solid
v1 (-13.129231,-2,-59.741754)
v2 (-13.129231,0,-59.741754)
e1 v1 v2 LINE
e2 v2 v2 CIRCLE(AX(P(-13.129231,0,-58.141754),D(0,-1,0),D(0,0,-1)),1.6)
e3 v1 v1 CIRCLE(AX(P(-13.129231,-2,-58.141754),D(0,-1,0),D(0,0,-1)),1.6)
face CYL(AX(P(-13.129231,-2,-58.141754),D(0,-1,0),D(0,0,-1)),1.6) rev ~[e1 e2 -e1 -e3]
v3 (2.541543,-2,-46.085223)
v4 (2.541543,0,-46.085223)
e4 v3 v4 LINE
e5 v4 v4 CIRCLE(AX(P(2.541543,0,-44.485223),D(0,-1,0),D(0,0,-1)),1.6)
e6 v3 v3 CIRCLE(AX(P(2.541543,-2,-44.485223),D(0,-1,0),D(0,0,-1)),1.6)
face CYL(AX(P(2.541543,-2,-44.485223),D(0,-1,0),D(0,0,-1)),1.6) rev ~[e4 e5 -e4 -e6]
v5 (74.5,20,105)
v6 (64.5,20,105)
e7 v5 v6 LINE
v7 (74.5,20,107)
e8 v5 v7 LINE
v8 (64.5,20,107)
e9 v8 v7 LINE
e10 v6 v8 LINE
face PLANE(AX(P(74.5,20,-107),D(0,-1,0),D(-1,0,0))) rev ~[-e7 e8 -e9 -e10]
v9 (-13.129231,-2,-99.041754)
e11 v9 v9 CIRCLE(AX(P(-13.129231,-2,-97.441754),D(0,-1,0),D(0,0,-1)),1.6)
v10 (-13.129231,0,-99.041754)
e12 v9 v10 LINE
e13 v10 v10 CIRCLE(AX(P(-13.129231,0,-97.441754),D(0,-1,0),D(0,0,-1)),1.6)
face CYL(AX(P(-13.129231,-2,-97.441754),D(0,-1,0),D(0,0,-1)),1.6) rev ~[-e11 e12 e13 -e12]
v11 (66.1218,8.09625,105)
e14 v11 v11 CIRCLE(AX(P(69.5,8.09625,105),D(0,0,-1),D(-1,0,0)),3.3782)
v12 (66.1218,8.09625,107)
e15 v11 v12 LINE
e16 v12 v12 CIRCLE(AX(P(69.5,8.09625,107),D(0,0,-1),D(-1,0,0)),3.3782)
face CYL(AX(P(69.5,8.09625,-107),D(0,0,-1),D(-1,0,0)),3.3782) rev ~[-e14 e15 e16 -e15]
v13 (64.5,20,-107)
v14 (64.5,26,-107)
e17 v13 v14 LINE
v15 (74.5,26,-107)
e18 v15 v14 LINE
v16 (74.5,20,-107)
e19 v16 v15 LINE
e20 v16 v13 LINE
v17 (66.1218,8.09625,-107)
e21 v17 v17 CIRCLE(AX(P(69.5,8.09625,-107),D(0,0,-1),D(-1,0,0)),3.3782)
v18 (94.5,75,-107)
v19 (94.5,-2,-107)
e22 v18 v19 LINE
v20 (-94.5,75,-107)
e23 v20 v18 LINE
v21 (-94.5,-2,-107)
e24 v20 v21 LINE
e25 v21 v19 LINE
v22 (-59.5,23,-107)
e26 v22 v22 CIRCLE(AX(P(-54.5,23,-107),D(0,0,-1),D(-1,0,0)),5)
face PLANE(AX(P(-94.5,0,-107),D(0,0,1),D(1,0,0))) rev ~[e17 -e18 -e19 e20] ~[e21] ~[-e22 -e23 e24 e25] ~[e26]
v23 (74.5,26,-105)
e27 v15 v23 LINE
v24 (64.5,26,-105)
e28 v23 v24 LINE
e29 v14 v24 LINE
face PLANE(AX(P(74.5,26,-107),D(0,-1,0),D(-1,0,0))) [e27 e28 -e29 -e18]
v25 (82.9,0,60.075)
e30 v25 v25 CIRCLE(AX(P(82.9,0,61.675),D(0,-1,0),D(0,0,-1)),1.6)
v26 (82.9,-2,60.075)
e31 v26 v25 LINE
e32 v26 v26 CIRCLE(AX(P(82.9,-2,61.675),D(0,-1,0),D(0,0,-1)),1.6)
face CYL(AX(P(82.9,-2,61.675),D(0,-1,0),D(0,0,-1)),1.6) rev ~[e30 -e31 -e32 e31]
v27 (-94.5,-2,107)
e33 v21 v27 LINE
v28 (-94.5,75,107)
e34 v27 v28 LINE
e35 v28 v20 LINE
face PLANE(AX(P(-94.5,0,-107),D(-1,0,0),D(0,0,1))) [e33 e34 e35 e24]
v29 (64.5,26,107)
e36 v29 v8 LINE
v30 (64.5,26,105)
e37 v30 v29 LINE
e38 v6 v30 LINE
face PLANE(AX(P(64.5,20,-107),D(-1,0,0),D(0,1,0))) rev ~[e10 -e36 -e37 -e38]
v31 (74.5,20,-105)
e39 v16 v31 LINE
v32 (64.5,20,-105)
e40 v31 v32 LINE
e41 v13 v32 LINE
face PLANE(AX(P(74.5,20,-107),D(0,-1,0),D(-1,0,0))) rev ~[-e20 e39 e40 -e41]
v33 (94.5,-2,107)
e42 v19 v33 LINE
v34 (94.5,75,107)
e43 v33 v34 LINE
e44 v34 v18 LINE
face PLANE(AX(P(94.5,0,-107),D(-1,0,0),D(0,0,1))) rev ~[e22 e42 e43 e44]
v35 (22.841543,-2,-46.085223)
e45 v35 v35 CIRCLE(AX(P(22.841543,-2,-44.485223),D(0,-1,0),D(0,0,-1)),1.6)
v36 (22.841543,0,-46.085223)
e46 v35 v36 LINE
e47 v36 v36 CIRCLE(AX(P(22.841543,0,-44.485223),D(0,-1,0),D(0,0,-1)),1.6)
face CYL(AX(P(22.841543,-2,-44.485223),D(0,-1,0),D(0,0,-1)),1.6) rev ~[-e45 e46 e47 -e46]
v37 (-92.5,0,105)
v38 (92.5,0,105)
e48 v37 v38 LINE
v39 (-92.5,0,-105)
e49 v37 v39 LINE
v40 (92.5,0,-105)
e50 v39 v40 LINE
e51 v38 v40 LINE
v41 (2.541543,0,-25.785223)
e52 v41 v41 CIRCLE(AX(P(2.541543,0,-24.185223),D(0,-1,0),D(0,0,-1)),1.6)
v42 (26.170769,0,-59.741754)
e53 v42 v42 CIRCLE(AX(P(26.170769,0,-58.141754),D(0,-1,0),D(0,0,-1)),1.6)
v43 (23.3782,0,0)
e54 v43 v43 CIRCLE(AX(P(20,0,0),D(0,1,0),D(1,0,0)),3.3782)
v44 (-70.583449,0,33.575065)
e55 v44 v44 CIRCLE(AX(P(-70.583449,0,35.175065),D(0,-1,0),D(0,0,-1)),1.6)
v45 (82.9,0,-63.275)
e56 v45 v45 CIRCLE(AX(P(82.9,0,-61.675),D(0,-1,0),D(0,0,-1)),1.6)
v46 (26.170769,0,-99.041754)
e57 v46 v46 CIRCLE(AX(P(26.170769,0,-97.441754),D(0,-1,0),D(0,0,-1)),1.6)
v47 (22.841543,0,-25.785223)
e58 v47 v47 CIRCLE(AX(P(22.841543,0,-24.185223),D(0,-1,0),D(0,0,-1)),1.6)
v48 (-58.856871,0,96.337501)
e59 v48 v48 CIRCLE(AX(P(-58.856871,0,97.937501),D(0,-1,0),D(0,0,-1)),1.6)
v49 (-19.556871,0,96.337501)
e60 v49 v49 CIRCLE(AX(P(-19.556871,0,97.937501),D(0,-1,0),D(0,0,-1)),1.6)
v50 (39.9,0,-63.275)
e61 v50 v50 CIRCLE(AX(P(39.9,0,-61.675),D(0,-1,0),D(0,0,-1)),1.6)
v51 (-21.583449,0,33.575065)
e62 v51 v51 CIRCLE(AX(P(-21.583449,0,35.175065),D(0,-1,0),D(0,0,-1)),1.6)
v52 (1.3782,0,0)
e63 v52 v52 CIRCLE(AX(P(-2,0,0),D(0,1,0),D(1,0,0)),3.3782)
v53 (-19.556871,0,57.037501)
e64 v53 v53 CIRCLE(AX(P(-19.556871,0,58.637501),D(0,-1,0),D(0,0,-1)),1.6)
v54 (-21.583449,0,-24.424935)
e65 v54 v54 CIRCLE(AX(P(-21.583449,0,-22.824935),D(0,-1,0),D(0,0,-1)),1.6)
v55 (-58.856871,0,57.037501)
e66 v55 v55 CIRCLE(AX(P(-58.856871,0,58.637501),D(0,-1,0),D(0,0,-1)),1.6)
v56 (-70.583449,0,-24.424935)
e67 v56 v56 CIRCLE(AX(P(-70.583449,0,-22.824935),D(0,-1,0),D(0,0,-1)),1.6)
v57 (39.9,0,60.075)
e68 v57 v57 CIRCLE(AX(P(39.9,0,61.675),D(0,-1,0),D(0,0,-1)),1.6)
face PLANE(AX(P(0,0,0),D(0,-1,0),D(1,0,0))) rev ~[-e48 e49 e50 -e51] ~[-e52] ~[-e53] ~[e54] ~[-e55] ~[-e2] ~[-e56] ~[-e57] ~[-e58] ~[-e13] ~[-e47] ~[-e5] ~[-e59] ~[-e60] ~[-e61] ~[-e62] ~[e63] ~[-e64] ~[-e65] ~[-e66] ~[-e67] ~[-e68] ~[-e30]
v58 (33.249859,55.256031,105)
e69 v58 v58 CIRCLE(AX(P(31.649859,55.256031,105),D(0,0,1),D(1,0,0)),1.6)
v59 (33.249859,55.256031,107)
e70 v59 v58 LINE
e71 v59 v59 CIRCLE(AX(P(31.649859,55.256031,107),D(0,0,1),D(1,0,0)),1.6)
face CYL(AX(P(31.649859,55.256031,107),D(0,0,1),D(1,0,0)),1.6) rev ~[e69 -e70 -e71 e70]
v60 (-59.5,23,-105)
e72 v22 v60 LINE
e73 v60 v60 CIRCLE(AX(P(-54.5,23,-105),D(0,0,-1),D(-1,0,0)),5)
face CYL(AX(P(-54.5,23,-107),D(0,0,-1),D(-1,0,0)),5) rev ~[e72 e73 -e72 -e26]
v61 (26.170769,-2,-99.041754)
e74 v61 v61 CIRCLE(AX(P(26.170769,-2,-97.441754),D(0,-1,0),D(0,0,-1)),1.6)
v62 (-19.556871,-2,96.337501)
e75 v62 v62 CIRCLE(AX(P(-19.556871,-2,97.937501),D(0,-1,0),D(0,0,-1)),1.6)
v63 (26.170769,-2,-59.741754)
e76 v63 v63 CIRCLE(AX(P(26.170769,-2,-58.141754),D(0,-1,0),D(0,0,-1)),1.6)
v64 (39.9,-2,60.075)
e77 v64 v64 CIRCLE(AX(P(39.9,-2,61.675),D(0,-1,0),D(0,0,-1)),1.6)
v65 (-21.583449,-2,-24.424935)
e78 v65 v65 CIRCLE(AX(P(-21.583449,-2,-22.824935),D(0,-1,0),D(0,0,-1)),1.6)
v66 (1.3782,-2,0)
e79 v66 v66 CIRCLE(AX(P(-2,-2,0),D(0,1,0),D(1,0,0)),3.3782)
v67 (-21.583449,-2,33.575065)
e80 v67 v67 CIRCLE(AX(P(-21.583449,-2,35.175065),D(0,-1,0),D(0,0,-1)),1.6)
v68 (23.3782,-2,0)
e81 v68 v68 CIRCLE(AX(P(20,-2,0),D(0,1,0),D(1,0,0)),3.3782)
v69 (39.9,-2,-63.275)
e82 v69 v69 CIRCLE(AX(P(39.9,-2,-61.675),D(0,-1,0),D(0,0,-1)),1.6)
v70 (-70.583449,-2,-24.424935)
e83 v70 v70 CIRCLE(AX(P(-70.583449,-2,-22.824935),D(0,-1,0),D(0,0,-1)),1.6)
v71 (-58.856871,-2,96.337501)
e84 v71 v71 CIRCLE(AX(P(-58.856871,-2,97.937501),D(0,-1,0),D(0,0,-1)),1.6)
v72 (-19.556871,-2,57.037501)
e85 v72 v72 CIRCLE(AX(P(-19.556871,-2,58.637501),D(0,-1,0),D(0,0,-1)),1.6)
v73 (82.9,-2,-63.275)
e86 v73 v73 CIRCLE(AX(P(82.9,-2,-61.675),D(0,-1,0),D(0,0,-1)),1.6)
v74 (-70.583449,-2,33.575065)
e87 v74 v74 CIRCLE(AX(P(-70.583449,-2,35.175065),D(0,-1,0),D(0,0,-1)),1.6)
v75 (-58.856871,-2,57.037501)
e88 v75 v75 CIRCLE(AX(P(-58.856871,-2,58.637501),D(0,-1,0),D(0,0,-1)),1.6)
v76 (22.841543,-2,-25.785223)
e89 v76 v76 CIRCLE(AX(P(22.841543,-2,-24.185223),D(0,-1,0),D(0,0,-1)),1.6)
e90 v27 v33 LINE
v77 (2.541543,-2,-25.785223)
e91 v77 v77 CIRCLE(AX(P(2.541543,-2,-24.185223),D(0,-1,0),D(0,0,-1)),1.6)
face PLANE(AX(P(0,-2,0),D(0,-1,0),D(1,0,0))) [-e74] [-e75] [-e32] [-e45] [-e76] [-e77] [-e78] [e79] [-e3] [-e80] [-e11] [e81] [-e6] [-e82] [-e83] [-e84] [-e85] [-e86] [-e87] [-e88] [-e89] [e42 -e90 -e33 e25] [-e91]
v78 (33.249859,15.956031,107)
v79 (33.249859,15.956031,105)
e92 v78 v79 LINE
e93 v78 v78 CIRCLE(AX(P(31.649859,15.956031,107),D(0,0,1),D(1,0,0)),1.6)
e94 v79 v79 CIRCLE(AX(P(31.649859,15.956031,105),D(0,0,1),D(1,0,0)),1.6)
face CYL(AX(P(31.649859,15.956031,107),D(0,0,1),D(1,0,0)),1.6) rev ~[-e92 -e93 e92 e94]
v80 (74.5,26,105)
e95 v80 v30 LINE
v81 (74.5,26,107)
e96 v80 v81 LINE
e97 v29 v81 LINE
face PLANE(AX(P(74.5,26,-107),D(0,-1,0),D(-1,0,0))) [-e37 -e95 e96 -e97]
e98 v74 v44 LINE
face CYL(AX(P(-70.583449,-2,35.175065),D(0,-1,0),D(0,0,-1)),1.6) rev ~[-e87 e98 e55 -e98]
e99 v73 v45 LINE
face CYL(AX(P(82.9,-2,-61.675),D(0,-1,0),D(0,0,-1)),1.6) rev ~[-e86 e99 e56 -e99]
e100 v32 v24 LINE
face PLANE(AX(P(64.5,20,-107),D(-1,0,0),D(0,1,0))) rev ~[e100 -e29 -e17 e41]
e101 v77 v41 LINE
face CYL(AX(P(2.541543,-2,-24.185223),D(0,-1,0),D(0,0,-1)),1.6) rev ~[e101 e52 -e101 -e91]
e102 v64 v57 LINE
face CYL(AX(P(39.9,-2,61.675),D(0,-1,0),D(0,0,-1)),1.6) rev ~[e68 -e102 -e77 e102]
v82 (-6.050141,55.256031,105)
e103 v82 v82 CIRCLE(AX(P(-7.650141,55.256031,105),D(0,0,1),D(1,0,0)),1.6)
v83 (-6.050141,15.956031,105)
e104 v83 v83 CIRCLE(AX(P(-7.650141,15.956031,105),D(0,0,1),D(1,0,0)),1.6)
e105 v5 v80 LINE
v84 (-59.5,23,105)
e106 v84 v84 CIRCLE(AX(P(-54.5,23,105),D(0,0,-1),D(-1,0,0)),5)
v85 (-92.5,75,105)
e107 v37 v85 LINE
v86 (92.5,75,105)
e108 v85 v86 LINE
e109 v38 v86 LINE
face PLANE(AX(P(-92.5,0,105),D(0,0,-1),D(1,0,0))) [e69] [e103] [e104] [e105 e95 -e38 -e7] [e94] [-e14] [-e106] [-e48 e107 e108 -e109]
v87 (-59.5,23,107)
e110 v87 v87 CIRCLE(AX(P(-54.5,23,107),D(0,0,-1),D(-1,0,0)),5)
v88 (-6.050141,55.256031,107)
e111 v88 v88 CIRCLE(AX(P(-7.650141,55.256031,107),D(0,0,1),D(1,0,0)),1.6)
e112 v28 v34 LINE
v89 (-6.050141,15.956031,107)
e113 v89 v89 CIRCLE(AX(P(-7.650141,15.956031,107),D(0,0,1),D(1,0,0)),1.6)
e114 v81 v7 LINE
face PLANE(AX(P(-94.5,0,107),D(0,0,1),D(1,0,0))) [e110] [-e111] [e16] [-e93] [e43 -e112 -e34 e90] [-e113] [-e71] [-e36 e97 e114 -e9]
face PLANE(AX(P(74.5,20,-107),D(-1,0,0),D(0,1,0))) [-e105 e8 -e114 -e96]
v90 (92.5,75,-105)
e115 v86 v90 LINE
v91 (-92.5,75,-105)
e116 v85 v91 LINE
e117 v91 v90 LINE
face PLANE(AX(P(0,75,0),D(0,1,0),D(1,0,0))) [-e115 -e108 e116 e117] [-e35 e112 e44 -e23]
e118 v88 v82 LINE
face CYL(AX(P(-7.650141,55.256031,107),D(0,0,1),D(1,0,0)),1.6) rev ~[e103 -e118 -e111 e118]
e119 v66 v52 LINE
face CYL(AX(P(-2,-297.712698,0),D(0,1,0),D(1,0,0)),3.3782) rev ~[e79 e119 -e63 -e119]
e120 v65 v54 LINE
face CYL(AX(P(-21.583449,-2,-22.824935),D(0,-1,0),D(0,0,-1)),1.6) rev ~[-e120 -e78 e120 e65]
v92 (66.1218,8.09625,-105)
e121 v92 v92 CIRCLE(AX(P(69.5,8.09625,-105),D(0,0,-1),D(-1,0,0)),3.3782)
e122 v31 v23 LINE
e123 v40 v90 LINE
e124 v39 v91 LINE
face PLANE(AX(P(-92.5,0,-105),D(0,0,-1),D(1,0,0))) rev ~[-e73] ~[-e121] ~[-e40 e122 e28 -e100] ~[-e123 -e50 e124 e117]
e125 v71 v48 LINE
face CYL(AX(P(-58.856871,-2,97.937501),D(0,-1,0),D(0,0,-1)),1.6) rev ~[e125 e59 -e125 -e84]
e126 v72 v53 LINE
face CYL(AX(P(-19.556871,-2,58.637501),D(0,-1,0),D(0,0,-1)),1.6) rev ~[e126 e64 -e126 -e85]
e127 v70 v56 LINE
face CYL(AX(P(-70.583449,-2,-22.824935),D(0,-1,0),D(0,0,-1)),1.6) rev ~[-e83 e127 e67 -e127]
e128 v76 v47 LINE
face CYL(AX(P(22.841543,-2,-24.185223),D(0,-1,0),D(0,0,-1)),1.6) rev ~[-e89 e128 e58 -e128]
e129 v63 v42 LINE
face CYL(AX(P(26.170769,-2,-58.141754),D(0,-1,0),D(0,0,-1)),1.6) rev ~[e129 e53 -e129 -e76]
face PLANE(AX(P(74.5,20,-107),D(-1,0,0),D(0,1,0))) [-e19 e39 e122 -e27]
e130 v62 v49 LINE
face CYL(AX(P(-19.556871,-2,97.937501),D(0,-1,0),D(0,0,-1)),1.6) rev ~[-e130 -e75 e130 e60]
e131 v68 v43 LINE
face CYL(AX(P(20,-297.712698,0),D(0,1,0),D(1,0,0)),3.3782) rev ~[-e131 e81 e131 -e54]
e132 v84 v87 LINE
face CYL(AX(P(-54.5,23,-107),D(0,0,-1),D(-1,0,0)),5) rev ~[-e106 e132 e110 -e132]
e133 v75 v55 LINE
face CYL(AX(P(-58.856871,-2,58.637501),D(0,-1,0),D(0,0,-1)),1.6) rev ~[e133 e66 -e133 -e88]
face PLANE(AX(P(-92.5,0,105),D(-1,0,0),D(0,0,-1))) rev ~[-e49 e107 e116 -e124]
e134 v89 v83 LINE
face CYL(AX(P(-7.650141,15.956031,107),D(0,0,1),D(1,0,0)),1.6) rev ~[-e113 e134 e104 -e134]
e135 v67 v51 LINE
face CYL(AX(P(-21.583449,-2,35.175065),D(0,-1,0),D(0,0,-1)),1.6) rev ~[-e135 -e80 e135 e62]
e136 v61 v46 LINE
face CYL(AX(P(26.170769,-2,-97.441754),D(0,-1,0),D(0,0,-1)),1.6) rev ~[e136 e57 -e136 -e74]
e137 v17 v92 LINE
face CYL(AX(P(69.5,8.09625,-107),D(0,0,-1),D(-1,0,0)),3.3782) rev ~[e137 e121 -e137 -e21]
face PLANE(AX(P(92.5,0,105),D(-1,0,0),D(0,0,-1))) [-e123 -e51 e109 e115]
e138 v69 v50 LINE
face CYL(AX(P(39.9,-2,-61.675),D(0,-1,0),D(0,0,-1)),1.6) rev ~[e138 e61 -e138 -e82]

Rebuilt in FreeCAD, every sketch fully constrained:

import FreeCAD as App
import Part
import Sketcher
from FreeCAD import Vector


def add_polygon(sketch, points):
    """Adds a closed chain of lines whose ends are joined by coincident constraints."""
    first, n = sketch.GeometryCount, len(points)
    for a, b in zip(points, points[1:] + points[:1]):
        sketch.addGeometry(Part.LineSegment(App.Vector(*a, 0), App.Vector(*b, 0)), False)
    for i in range(n):
        sketch.addConstraint(Sketcher.Constraint("Coincident", first + i, 2, first + (i + 1) % n, 1))

doc = App.newDocument("Part")
body = doc.addObject("PartDesign::Body", "Body")

sketch1 = body.newObject("Sketcher::SketchObject", "Sketch")
sketch1.AttachmentSupport = (doc.getObject("XZ_Plane"), [""])
sketch1.MapMode = "FlatFace"
add_polygon(sketch1, [(-94, -107), (-94, 107), (94, 107), (94, -107)])
add_polygon(sketch1, [(92, 105), (-92, 105), (-92, -105), (92, -105)])
sketch1.addConstraint([
    Sketcher.Constraint("Vertical", 0),
    Sketcher.Constraint("Horizontal", 1),
    Sketcher.Constraint("Vertical", 2),
    Sketcher.Constraint("Horizontal", 3),
    Sketcher.Constraint("Horizontal", 4),
    Sketcher.Constraint("Vertical", 5),
    Sketcher.Constraint("Horizontal", 6),
    Sketcher.Constraint("Vertical", 7),
    Sketcher.Constraint("Symmetric", 0, 2, 2, 2, -1, 1),
    Sketcher.Constraint("Symmetric", 4, 2, 6, 2, -1, 1),
    Sketcher.Constraint("DistanceX", 1, 1, 1, 2, 189.0),
    Sketcher.Constraint("DistanceX", 4, 2, 4, 1, 185.0),
    Sketcher.Constraint("DistanceY", 0, 1, 0, 2, 214.0),
    Sketcher.Constraint("DistanceY", 5, 2, 5, 1, 210.0),
])
pad1 = body.newObject("PartDesign::Pad", "Pad")
pad1.Profile = sketch1
pad1.Length = 75
pad1.Reversed = True

sketch2 = body.newObject("Sketcher::SketchObject", "Sketch001")
sketch2.AttachmentSupport = (doc.getObject("XZ_Plane"), [""])
sketch2.MapMode = "FlatFace"
add_polygon(sketch2, [(-94, 107), (-94, -107), (94, -107), (94, 107)])
sketch2.addConstraint([
    Sketcher.Constraint("Vertical", 0),
    Sketcher.Constraint("Horizontal", 1),
    Sketcher.Constraint("Vertical", 2),
    Sketcher.Constraint("Horizontal", 3),
    Sketcher.Constraint("Symmetric", 0, 2, 2, 2, -1, 1),
    Sketcher.Constraint("DistanceX", 1, 1, 1, 2, 189.0),
    Sketcher.Constraint("DistanceY", 0, 2, 0, 1, 214.0),
])
pad2 = body.newObject("PartDesign::Pad", "Pad001")
pad2.Profile = sketch2
pad2.Length = 2

sketch3 = body.newObject("Sketcher::SketchObject", "Sketch002")
sketch3.AttachmentSupport = (doc.getObject("XY_Plane"), [""])
sketch3.MapMode = "FlatFace"
sketch3.AttachmentOffset = App.Placement(Vector(0, 0, -107), App.Rotation())
sketch3.addGeometry(Part.Circle(Vector(-54, 23, 0), Vector(0, 0, 1), 5), False)
add_polygon(sketch3, [(74, 26), (74, 20), (64, 20), (64, 26)])
sketch3.addConstraint([
    Sketcher.Constraint("Vertical", 1),
    Sketcher.Constraint("Horizontal", 2),
    Sketcher.Constraint("Vertical", 3),
    Sketcher.Constraint("Horizontal", 4),
    Sketcher.Constraint("Diameter", 0, 10.0),
    Sketcher.Constraint("DistanceX", 2, 2, 2, 1, 10.0),
    Sketcher.Constraint("DistanceY", 1, 2, 1, 1, 6.0),
    Sketcher.Constraint("DistanceY", -1, 1, 0, 3, 23.0),
    Sketcher.Constraint("DistanceY", -1, 1, 1, 2, 20.0),
    Sketcher.Constraint("DistanceX", 0, 3, 1, 2, 129.0),
    Sketcher.Constraint("DistanceX", 0, 3, -1, 1, 54.5),
])
pocket1 = body.newObject("PartDesign::Pocket", "Pocket")
pocket1.Profile = sketch3
pocket1.Type = "ThroughAll"
pocket1.Reversed = True

sketch4 = body.newObject("Sketcher::SketchObject", "Sketch003")
sketch4.AttachmentSupport = (doc.getObject("XY_Plane"), [""])
sketch4.MapMode = "FlatFace"
sketch4.AttachmentOffset = App.Placement(Vector(0, 0, -107), App.Rotation())
sketch4.addGeometry(Part.Circle(Vector(69.5, 8.1, 0), Vector(0, 0, 1), 3.4), False)
sketch4.addConstraint([
    Sketcher.Constraint("Diameter", 0, 6.7564),
    Sketcher.Constraint("DistanceX", -1, 1, 0, 3, 69.5),
    Sketcher.Constraint("DistanceY", -1, 1, 0, 3, 8.09625),
])
pocket2 = body.newObject("PartDesign::Pocket", "Pocket001")
pocket2.Profile = sketch4
pocket2.Type = "ThroughAll"
pocket2.Reversed = True

sketch5 = body.newObject("Sketcher::SketchObject", "Sketch004")
sketch5.AttachmentSupport = (doc.getObject("XZ_Plane"), [""])
sketch5.MapMode = "FlatFace"
sketch5.AttachmentOffset = App.Placement(Vector(0, 0, 2), App.Rotation())
sketch5.addGeometry([
    Part.Circle(Vector(20, 0, 0), Vector(0, 0, 1), 3.4),
    Part.Circle(Vector(-2, 0, 0), Vector(0, 0, 1), 3.4),
], False)
sketch5.addConstraint([
    Sketcher.Constraint("Equal", 0, 1),
    Sketcher.Constraint("PointOnObject", 0, 3, -1),
    Sketcher.Constraint("PointOnObject", 1, 3, -1),
    Sketcher.Constraint("DistanceX", -1, 1, 0, 3, 20.0),
    Sketcher.Constraint("DistanceX", 1, 3, -1, 1, 2.0),
    Sketcher.Constraint("Diameter", 0, 6.7564),
])
doc.recompute()
hole = body.newObject("PartDesign::Hole", "Hole")
hole.Profile = sketch5
hole.ThreadType = "None"
hole.Diameter = 6.7564
hole.DepthType = "ThroughAll"

sketch6 = body.newObject("Sketcher::SketchObject", "Sketch005")
sketch6.AttachmentSupport = (doc.getObject("XZ_Plane"), [""])
sketch6.MapMode = "FlatFace"
sketch6.AttachmentOffset = App.Placement(Vector(0, 0, 2), App.Rotation())
sketch6.addGeometry(Part.Circle(Vector(82.9, 61.7, 0), Vector(0, 0, 1), 1.6), False)
sketch6.addConstraint([
    Sketcher.Constraint("Diameter", 0, 3.2),
    Sketcher.Constraint("DistanceX", -1, 1, 0, 3, 82.9),
    Sketcher.Constraint("DistanceY", -1, 1, 0, 3, 61.675),
])
pocket3 = body.newObject("PartDesign::Pocket", "Pocket002")
pocket3.Profile = sketch6
pocket3.Type = "UpToFirst"

sketch7 = body.newObject("Sketcher::SketchObject", "Sketch006")
sketch7.AttachmentSupport = (doc.getObject("XZ_Plane"), [""])
sketch7.MapMode = "FlatFace"
sketch7.AttachmentOffset = App.Placement(Vector(0, 0, 2), App.Rotation())
sketch7.addGeometry(Part.Circle(Vector(82.9, -61.7, 0), Vector(0, 0, 1), 1.6), False)
sketch7.addConstraint([
    Sketcher.Constraint("Diameter", 0, 3.2),
    Sketcher.Constraint("DistanceX", -1, 1, 0, 3, 82.9),
    Sketcher.Constraint("DistanceY", 0, 3, -1, 1, 61.675),
])
pocket4 = body.newObject("PartDesign::Pocket", "Pocket003")
pocket4.Profile = sketch7
pocket4.Type = "UpToFirst"

sketch8 = body.newObject("Sketcher::SketchObject", "Sketch007")
sketch8.AttachmentSupport = (doc.getObject("XZ_Plane"), [""])
sketch8.MapMode = "FlatFace"
sketch8.AttachmentOffset = App.Placement(Vector(0, 0, 2), App.Rotation())
sketch8.addGeometry(Part.Circle(Vector(39.9, 61.7, 0), Vector(0, 0, 1), 1.6), False)
sketch8.addConstraint([
    Sketcher.Constraint("Diameter", 0, 3.2),
    Sketcher.Constraint("DistanceX", -1, 1, 0, 3, 39.9),
    Sketcher.Constraint("DistanceY", -1, 1, 0, 3, 61.675),
])
pocket5 = body.newObject("PartDesign::Pocket", "Pocket004")
pocket5.Profile = sketch8
pocket5.Type = "UpToFirst"

sketch9 = body.newObject("Sketcher::SketchObject", "Sketch008")
sketch9.AttachmentSupport = (doc.getObject("XZ_Plane"), [""])
sketch9.MapMode = "FlatFace"
sketch9.AttachmentOffset = App.Placement(Vector(0, 0, 2), App.Rotation())
sketch9.addGeometry(Part.Circle(Vector(39.9, -61.7, 0), Vector(0, 0, 1), 1.6), False)
sketch9.addConstraint([
    Sketcher.Constraint("Diameter", 0, 3.2),
    Sketcher.Constraint("DistanceX", -1, 1, 0, 3, 39.9),
    Sketcher.Constraint("DistanceY", 0, 3, -1, 1, 61.675),
])
pocket6 = body.newObject("PartDesign::Pocket", "Pocket005")
pocket6.Profile = sketch9
pocket6.Type = "UpToFirst"

sketch10 = body.newObject("Sketcher::SketchObject", "Sketch009")
sketch10.AttachmentSupport = (doc.getObject("XZ_Plane"), [""])
sketch10.MapMode = "FlatFace"
sketch10.AttachmentOffset = App.Placement(Vector(0, 0, 2), App.Rotation())
sketch10.addGeometry(Part.Circle(Vector(26.2, -58.1, 0), Vector(0, 0, 1), 1.6), False)
sketch10.addConstraint([
    Sketcher.Constraint("Diameter", 0, 3.2),
    Sketcher.Constraint("DistanceX", -1, 1, 0, 3, 26.170769),
    Sketcher.Constraint("DistanceY", 0, 3, -1, 1, 58.141754),
])
pocket7 = body.newObject("PartDesign::Pocket", "Pocket006")
pocket7.Profile = sketch10
pocket7.Type = "UpToFirst"

sketch11 = body.newObject("Sketcher::SketchObject", "Sketch010")
sketch11.AttachmentSupport = (doc.getObject("XZ_Plane"), [""])
sketch11.MapMode = "FlatFace"
sketch11.AttachmentOffset = App.Placement(Vector(0, 0, 2), App.Rotation())
sketch11.addGeometry(Part.Circle(Vector(26.2, -97.4, 0), Vector(0, 0, 1), 1.6), False)
sketch11.addConstraint([
    Sketcher.Constraint("Diameter", 0, 3.2),
    Sketcher.Constraint("DistanceX", -1, 1, 0, 3, 26.170769),
    Sketcher.Constraint("DistanceY", 0, 3, -1, 1, 97.441754),
])
pocket8 = body.newObject("PartDesign::Pocket", "Pocket007")
pocket8.Profile = sketch11
pocket8.Type = "UpToFirst"

sketch12 = body.newObject("Sketcher::SketchObject", "Sketch011")
sketch12.AttachmentSupport = (doc.getObject("XZ_Plane"), [""])
sketch12.MapMode = "FlatFace"
sketch12.AttachmentOffset = App.Placement(Vector(0, 0, 2), App.Rotation())
sketch12.addGeometry(Part.Circle(Vector(-13.1, -58.1, 0), Vector(0, 0, 1), 1.6), False)
sketch12.addConstraint([
    Sketcher.Constraint("Diameter", 0, 3.2),
    Sketcher.Constraint("DistanceX", 0, 3, -1, 1, 13.129231),
    Sketcher.Constraint("DistanceY", 0, 3, -1, 1, 58.141754),
])
pocket9 = body.newObject("PartDesign::Pocket", "Pocket008")
pocket9.Profile = sketch12
pocket9.Type = "UpToFirst"

sketch13 = body.newObject("Sketcher::SketchObject", "Sketch012")
sketch13.AttachmentSupport = (doc.getObject("XZ_Plane"), [""])
sketch13.MapMode = "FlatFace"
sketch13.AttachmentOffset = App.Placement(Vector(0, 0, 2), App.Rotation())
sketch13.addGeometry(Part.Circle(Vector(-13.1, -97.4, 0), Vector(0, 0, 1), 1.6), False)
sketch13.addConstraint([
    Sketcher.Constraint("Diameter", 0, 3.2),
    Sketcher.Constraint("DistanceX", 0, 3, -1, 1, 13.129231),
    Sketcher.Constraint("DistanceY", 0, 3, -1, 1, 97.441754),
])
pocket10 = body.newObject("PartDesign::Pocket", "Pocket009")
pocket10.Profile = sketch13
pocket10.Type = "UpToFirst"

sketch14 = body.newObject("Sketcher::SketchObject", "Sketch013")
sketch14.AttachmentSupport = (doc.getObject("XZ_Plane"), [""])
sketch14.MapMode = "FlatFace"
sketch14.AttachmentOffset = App.Placement(Vector(0, 0, 2), App.Rotation())
sketch14.addGeometry(Part.Circle(Vector(22.8, -24.2, 0), Vector(0, 0, 1), 1.6), False)
sketch14.addConstraint([
    Sketcher.Constraint("Diameter", 0, 3.2),
    Sketcher.Constraint("DistanceX", -1, 1, 0, 3, 22.841543),
    Sketcher.Constraint("DistanceY", 0, 3, -1, 1, 24.185223),
])
pocket11 = body.newObject("PartDesign::Pocket", "Pocket010")
pocket11.Profile = sketch14
pocket11.Type = "UpToFirst"

sketch15 = body.newObject("Sketcher::SketchObject", "Sketch014")
sketch15.AttachmentSupport = (doc.getObject("XZ_Plane"), [""])
sketch15.MapMode = "FlatFace"
sketch15.AttachmentOffset = App.Placement(Vector(0, 0, 2), App.Rotation())
sketch15.addGeometry(Part.Circle(Vector(22.8, -44.5, 0), Vector(0, 0, 1), 1.6), False)
sketch15.addConstraint([
    Sketcher.Constraint("Diameter", 0, 3.2),
    Sketcher.Constraint("DistanceX", -1, 1, 0, 3, 22.841543),
    Sketcher.Constraint("DistanceY", 0, 3, -1, 1, 44.485223),
])
pocket12 = body.newObject("PartDesign::Pocket", "Pocket011")
pocket12.Profile = sketch15
pocket12.Type = "UpToFirst"

sketch16 = body.newObject("Sketcher::SketchObject", "Sketch015")
sketch16.AttachmentSupport = (doc.getObject("XZ_Plane"), [""])
sketch16.MapMode = "FlatFace"
sketch16.AttachmentOffset = App.Placement(Vector(0, 0, 2), App.Rotation())
sketch16.addGeometry(Part.Circle(Vector(2.5, -24.2, 0), Vector(0, 0, 1), 1.6), False)
sketch16.addConstraint([
    Sketcher.Constraint("Diameter", 0, 3.2),
    Sketcher.Constraint("DistanceX", -1, 1, 0, 3, 2.541543),
    Sketcher.Constraint("DistanceY", 0, 3, -1, 1, 24.185223),
])
pocket13 = body.newObject("PartDesign::Pocket", "Pocket012")
pocket13.Profile = sketch16
pocket13.Type = "UpToFirst"

sketch17 = body.newObject("Sketcher::SketchObject", "Sketch016")
sketch17.AttachmentSupport = (doc.getObject("XZ_Plane"), [""])
sketch17.MapMode = "FlatFace"
sketch17.AttachmentOffset = App.Placement(Vector(0, 0, 2), App.Rotation())
sketch17.addGeometry(Part.Circle(Vector(2.5, -44.5, 0), Vector(0, 0, 1), 1.6), False)
sketch17.addConstraint([
    Sketcher.Constraint("Diameter", 0, 3.2),
    Sketcher.Constraint("DistanceX", -1, 1, 0, 3, 2.541543),
    Sketcher.Constraint("DistanceY", 0, 3, -1, 1, 44.485223),
])
pocket14 = body.newObject("PartDesign::Pocket", "Pocket013")
pocket14.Profile = sketch17
pocket14.Type = "UpToFirst"

sketch18 = body.newObject("Sketcher::SketchObject", "Sketch017")
sketch18.AttachmentSupport = (doc.getObject("XZ_Plane"), [""])
sketch18.MapMode = "FlatFace"
sketch18.AttachmentOffset = App.Placement(Vector(0, 0, 2), App.Rotation())
sketch18.addGeometry(Part.Circle(Vector(-21.6, 35.2, 0), Vector(0, 0, 1), 1.6), False)
sketch18.addConstraint([
    Sketcher.Constraint("Diameter", 0, 3.2),
    Sketcher.Constraint("DistanceX", 0, 3, -1, 1, 21.583449),
    Sketcher.Constraint("DistanceY", -1, 1, 0, 3, 35.175065),
])
pocket15 = body.newObject("PartDesign::Pocket", "Pocket014")
pocket15.Profile = sketch18
pocket15.Type = "UpToFirst"

sketch19 = body.newObject("Sketcher::SketchObject", "Sketch018")
sketch19.AttachmentSupport = (doc.getObject("XZ_Plane"), [""])
sketch19.MapMode = "FlatFace"
sketch19.AttachmentOffset = App.Placement(Vector(0, 0, 2), App.Rotation())
sketch19.addGeometry(Part.Circle(Vector(-21.6, -22.8, 0), Vector(0, 0, 1), 1.6), False)
sketch19.addConstraint([
    Sketcher.Constraint("Diameter", 0, 3.2),
    Sketcher.Constraint("DistanceX", 0, 3, -1, 1, 21.583449),
    Sketcher.Constraint("DistanceY", 0, 3, -1, 1, 22.824935),
])
pocket16 = body.newObject("PartDesign::Pocket", "Pocket015")
pocket16.Profile = sketch19
pocket16.Type = "UpToFirst"

sketch20 = body.newObject("Sketcher::SketchObject", "Sketch019")
sketch20.AttachmentSupport = (doc.getObject("XZ_Plane"), [""])
sketch20.MapMode = "FlatFace"
sketch20.AttachmentOffset = App.Placement(Vector(0, 0, 2), App.Rotation())
sketch20.addGeometry(Part.Circle(Vector(-70.6, -22.8, 0), Vector(0, 0, 1), 1.6), False)
sketch20.addConstraint([
    Sketcher.Constraint("Diameter", 0, 3.2),
    Sketcher.Constraint("DistanceX", 0, 3, -1, 1, 70.583449),
    Sketcher.Constraint("DistanceY", 0, 3, -1, 1, 22.824935),
])
pocket17 = body.newObject("PartDesign::Pocket", "Pocket016")
pocket17.Profile = sketch20
pocket17.Type = "UpToFirst"

sketch21 = body.newObject("Sketcher::SketchObject", "Sketch020")
sketch21.AttachmentSupport = (doc.getObject("XZ_Plane"), [""])
sketch21.MapMode = "FlatFace"
sketch21.AttachmentOffset = App.Placement(Vector(0, 0, 2), App.Rotation())
sketch21.addGeometry(Part.Circle(Vector(-70.6, 35.2, 0), Vector(0, 0, 1), 1.6), False)
sketch21.addConstraint([
    Sketcher.Constraint("Diameter", 0, 3.2),
    Sketcher.Constraint("DistanceX", 0, 3, -1, 1, 70.583449),
    Sketcher.Constraint("DistanceY", -1, 1, 0, 3, 35.175065),
])
pocket18 = body.newObject("PartDesign::Pocket", "Pocket017")
pocket18.Profile = sketch21
pocket18.Type = "UpToFirst"

sketch22 = body.newObject("Sketcher::SketchObject", "Sketch021")
sketch22.AttachmentSupport = (doc.getObject("XZ_Plane"), [""])
sketch22.MapMode = "FlatFace"
sketch22.AttachmentOffset = App.Placement(Vector(0, 0, 2), App.Rotation())
sketch22.addGeometry(Part.Circle(Vector(-58.9, 58.6, 0), Vector(0, 0, 1), 1.6), False)
sketch22.addConstraint([
    Sketcher.Constraint("Diameter", 0, 3.2),
    Sketcher.Constraint("DistanceY", -1, 1, 0, 3, 58.637501),
    Sketcher.Constraint("DistanceX", 0, 3, -1, 1, 58.856871),
])
pocket19 = body.newObject("PartDesign::Pocket", "Pocket018")
pocket19.Profile = sketch22
pocket19.Type = "UpToFirst"

sketch23 = body.newObject("Sketcher::SketchObject", "Sketch022")
sketch23.AttachmentSupport = (doc.getObject("XZ_Plane"), [""])
sketch23.MapMode = "FlatFace"
sketch23.AttachmentOffset = App.Placement(Vector(0, 0, 2), App.Rotation())
sketch23.addGeometry(Part.Circle(Vector(-19.6, 58.6, 0), Vector(0, 0, 1), 1.6), False)
sketch23.addConstraint([
    Sketcher.Constraint("Diameter", 0, 3.2),
    Sketcher.Constraint("DistanceY", -1, 1, 0, 3, 58.637501),
    Sketcher.Constraint("DistanceX", 0, 3, -1, 1, 19.556871),
])
pocket20 = body.newObject("PartDesign::Pocket", "Pocket019")
pocket20.Profile = sketch23
pocket20.Type = "UpToFirst"

sketch24 = body.newObject("Sketcher::SketchObject", "Sketch023")
sketch24.AttachmentSupport = (doc.getObject("XZ_Plane"), [""])
sketch24.MapMode = "FlatFace"
sketch24.AttachmentOffset = App.Placement(Vector(0, 0, 2), App.Rotation())
sketch24.addGeometry(Part.Circle(Vector(-19.6, 97.9, 0), Vector(0, 0, 1), 1.6), False)
sketch24.addConstraint([
    Sketcher.Constraint("Diameter", 0, 3.2),
    Sketcher.Constraint("DistanceY", -1, 1, 0, 3, 97.937501),
    Sketcher.Constraint("DistanceX", 0, 3, -1, 1, 19.556871),
])
pocket21 = body.newObject("PartDesign::Pocket", "Pocket020")
pocket21.Profile = sketch24
pocket21.Type = "UpToFirst"

sketch25 = body.newObject("Sketcher::SketchObject", "Sketch024")
sketch25.AttachmentSupport = (doc.getObject("XZ_Plane"), [""])
sketch25.MapMode = "FlatFace"
sketch25.AttachmentOffset = App.Placement(Vector(0, 0, 2), App.Rotation())
sketch25.addGeometry(Part.Circle(Vector(-58.9, 97.9, 0), Vector(0, 0, 1), 1.6), False)
sketch25.addConstraint([
    Sketcher.Constraint("Diameter", 0, 3.2),
    Sketcher.Constraint("DistanceY", -1, 1, 0, 3, 97.937501),
    Sketcher.Constraint("DistanceX", 0, 3, -1, 1, 58.856871),
])
pocket22 = body.newObject("PartDesign::Pocket", "Pocket021")
pocket22.Profile = sketch25
pocket22.Type = "UpToFirst"

sketch26 = body.newObject("Sketcher::SketchObject", "Sketch025")
sketch26.AttachmentSupport = (doc.getObject("XY_Plane"), [""])
sketch26.MapMode = "FlatFace"
sketch26.AttachmentOffset = App.Placement(Vector(0, 0, 107), App.Rotation())
sketch26.addGeometry(Part.Circle(Vector(-7.7, 55.3, 0), Vector(0, 0, 1), 1.6), False)
sketch26.addConstraint([
    Sketcher.Constraint("Diameter", 0, 3.2),
    Sketcher.Constraint("DistanceX", 0, 3, -1, 1, 7.650141),
    Sketcher.Constraint("DistanceY", -1, 1, 0, 3, 55.256031),
])
pocket23 = body.newObject("PartDesign::Pocket", "Pocket022")
pocket23.Profile = sketch26
pocket23.Type = "UpToFirst"

sketch27 = body.newObject("Sketcher::SketchObject", "Sketch026")
sketch27.AttachmentSupport = (doc.getObject("XY_Plane"), [""])
sketch27.MapMode = "FlatFace"
sketch27.AttachmentOffset = App.Placement(Vector(0, 0, 107), App.Rotation())
sketch27.addGeometry(Part.Circle(Vector(31.6, 55.3, 0), Vector(0, 0, 1), 1.6), False)
sketch27.addConstraint([
    Sketcher.Constraint("Diameter", 0, 3.2),
    Sketcher.Constraint("DistanceX", -1, 1, 0, 3, 31.649859),
    Sketcher.Constraint("DistanceY", -1, 1, 0, 3, 55.256031),
])
pocket24 = body.newObject("PartDesign::Pocket", "Pocket023")
pocket24.Profile = sketch27
pocket24.Type = "UpToFirst"

sketch28 = body.newObject("Sketcher::SketchObject", "Sketch027")
sketch28.AttachmentSupport = (doc.getObject("XY_Plane"), [""])
sketch28.MapMode = "FlatFace"
sketch28.AttachmentOffset = App.Placement(Vector(0, 0, 107), App.Rotation())
sketch28.addGeometry(Part.Circle(Vector(31.6, 16, 0), Vector(0, 0, 1), 1.6), False)
sketch28.addConstraint([
    Sketcher.Constraint("Diameter", 0, 3.2),
    Sketcher.Constraint("DistanceX", -1, 1, 0, 3, 31.649859),
    Sketcher.Constraint("DistanceY", -1, 1, 0, 3, 15.956031),
])
pocket25 = body.newObject("PartDesign::Pocket", "Pocket024")
pocket25.Profile = sketch28
pocket25.Type = "UpToFirst"

sketch29 = body.newObject("Sketcher::SketchObject", "Sketch028")
sketch29.AttachmentSupport = (doc.getObject("XY_Plane"), [""])
sketch29.MapMode = "FlatFace"
sketch29.AttachmentOffset = App.Placement(Vector(0, 0, 107), App.Rotation())
sketch29.addGeometry(Part.Circle(Vector(-7.7, 16, 0), Vector(0, 0, 1), 1.6), False)
sketch29.addConstraint([
    Sketcher.Constraint("Diameter", 0, 3.2),
    Sketcher.Constraint("DistanceX", 0, 3, -1, 1, 7.650141),
    Sketcher.Constraint("DistanceY", -1, 1, 0, 3, 15.956031),
])
pocket26 = body.newObject("PartDesign::Pocket", "Pocket025")
pocket26.Profile = sketch29
pocket26.Type = "UpToFirst"

doc.recompute()
